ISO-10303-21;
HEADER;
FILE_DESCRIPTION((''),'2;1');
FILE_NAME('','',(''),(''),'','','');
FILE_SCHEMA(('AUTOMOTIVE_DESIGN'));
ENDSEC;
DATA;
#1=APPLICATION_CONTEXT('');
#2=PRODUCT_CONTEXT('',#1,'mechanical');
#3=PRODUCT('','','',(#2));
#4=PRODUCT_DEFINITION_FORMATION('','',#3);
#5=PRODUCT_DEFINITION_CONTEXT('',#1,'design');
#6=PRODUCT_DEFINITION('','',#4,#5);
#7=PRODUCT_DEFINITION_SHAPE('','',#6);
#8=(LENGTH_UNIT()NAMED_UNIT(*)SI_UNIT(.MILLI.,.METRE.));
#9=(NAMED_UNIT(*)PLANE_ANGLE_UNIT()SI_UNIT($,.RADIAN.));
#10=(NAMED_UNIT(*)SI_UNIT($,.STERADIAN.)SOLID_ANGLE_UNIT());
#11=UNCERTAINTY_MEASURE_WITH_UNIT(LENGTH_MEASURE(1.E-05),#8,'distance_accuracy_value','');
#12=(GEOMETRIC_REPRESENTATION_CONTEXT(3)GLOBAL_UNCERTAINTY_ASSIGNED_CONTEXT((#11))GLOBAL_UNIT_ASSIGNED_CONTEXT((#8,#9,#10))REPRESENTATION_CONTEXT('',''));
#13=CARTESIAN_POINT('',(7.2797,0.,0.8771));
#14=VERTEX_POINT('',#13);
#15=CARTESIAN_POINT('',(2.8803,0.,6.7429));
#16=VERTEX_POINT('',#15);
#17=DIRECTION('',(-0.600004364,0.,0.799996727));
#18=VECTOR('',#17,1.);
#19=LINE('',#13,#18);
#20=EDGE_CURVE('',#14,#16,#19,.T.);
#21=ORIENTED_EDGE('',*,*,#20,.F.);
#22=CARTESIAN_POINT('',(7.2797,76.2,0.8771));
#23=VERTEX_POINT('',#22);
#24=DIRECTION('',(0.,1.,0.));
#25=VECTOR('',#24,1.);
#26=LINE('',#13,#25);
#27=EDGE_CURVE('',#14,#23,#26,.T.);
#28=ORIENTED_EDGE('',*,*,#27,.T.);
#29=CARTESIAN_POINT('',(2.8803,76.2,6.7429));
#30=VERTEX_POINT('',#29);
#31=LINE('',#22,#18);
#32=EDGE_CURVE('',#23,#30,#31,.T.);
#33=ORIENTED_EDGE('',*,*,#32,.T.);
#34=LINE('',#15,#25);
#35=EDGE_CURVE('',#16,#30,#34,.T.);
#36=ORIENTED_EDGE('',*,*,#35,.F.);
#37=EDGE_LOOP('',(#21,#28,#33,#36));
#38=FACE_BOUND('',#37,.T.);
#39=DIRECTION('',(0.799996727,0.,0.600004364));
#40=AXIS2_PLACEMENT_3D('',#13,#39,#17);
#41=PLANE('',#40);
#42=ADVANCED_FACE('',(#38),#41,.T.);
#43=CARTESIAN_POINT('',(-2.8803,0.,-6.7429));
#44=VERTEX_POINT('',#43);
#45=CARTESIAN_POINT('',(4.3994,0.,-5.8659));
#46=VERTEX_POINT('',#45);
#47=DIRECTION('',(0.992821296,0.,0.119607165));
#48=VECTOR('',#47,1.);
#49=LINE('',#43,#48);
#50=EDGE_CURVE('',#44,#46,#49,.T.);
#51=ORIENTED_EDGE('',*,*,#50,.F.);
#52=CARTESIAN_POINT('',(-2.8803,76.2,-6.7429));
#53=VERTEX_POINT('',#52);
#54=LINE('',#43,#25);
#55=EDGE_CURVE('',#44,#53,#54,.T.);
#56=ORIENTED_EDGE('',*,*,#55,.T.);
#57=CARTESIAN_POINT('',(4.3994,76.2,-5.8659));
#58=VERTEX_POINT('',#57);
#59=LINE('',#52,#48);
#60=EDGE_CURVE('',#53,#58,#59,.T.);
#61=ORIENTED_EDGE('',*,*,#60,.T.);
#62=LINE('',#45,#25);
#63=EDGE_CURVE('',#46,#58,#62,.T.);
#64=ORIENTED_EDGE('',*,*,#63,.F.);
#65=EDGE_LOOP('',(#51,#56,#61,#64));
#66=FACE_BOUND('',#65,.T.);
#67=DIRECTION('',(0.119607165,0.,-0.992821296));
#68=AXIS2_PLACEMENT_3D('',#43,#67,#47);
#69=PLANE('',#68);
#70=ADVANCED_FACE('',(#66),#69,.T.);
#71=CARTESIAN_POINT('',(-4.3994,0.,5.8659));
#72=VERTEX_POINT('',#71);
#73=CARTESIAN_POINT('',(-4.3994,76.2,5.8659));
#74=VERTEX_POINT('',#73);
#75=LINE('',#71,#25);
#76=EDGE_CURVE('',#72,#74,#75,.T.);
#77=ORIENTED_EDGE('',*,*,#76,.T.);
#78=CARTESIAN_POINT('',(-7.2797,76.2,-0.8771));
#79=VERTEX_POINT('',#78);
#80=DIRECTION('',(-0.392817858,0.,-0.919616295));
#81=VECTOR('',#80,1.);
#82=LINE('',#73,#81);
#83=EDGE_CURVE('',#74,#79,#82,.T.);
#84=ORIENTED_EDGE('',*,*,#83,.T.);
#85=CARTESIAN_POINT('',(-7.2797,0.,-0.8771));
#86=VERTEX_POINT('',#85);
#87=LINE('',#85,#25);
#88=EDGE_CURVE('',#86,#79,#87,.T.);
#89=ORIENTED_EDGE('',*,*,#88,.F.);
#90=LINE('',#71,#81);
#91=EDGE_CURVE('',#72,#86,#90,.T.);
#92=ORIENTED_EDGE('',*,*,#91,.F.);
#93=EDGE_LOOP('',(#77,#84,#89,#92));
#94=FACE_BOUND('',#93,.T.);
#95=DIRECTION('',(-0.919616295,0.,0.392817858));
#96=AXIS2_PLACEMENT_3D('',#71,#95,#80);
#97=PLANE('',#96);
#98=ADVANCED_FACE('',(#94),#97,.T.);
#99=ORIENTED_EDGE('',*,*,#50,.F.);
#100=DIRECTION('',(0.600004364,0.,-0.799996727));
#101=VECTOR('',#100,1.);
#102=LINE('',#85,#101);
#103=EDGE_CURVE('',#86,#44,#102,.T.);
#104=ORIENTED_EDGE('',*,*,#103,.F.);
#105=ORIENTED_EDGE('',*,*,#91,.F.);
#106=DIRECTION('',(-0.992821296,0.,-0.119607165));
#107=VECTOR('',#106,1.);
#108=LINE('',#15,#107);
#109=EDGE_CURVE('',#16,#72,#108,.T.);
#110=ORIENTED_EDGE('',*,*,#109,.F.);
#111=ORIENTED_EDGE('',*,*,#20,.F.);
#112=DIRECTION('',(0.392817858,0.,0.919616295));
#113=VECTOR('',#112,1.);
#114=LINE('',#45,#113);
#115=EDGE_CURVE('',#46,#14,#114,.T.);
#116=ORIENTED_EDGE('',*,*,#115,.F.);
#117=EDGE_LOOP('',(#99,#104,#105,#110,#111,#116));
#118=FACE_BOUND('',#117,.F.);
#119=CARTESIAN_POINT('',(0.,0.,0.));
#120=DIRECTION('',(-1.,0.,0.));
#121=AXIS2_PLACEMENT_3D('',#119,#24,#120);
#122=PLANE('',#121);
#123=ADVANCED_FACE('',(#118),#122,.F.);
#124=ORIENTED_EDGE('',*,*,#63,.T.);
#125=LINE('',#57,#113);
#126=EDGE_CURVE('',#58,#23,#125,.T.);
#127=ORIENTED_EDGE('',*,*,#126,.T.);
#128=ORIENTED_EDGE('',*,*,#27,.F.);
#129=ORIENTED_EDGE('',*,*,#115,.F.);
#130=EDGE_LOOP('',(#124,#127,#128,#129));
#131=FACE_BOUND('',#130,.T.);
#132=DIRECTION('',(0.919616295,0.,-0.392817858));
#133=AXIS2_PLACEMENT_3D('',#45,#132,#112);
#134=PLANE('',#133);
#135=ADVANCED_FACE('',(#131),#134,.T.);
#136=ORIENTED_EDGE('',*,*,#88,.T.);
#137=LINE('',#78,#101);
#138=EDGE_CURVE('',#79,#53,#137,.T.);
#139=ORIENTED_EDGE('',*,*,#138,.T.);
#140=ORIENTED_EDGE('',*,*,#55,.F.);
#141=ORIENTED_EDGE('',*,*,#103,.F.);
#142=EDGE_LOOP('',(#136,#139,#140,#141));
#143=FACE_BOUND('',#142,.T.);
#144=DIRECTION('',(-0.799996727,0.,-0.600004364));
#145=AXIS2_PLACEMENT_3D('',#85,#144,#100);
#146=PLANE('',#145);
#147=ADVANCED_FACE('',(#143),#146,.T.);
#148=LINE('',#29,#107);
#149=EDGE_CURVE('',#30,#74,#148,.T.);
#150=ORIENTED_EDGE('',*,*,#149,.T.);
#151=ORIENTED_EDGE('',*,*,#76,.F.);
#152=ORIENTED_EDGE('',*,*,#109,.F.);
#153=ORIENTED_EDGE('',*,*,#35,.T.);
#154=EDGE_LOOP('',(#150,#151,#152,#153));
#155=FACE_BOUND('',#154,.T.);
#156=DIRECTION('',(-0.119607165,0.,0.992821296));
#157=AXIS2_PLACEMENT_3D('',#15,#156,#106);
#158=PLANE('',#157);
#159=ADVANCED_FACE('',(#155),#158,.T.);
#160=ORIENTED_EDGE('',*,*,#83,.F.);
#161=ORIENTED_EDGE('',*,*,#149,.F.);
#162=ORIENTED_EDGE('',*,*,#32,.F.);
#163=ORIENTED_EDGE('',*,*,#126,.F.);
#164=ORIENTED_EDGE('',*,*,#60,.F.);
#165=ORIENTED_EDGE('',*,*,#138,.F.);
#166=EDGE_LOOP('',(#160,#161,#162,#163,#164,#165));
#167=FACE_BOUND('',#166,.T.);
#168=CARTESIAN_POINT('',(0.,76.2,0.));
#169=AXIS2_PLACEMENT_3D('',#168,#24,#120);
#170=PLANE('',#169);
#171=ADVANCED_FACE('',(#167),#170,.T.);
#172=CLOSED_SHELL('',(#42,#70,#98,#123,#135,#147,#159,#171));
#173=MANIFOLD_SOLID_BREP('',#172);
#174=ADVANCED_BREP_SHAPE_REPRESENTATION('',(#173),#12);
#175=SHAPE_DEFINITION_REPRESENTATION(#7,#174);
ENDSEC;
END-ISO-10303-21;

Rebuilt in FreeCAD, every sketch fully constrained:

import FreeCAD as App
import Part
import Sketcher
from FreeCAD import Vector
Q = App.Units.Quantity

doc = App.newDocument("Part")
body = doc.addObject("PartDesign::Body", "Body")

sketch1 = doc.addObject("Sketcher::SketchObject", "Sketch")
body.addObject(sketch1)
sketch1.AttachmentSupport = (doc.XZ_Plane, [""])
sketch1.MapMode = "FlatFace"
sketch1.addGeometry([
    Part.LineSegment(Vector(7.2797, 0.8771, 0), Vector(4.3994, -5.8659, 0)),
    Part.LineSegment(Vector(4.3994, -5.8659, 0), Vector(-2.8803, -6.7429, 0)),
    Part.LineSegment(Vector(-2.8803, -6.7429, 0), Vector(-7.2797, -0.8771, 0)),
    Part.LineSegment(Vector(-7.2797, -0.8771, 0), Vector(-4.3994, 5.8659, 0)),
    Part.LineSegment(Vector(-4.3994, 5.8659, 0), Vector(2.8803, 6.7429, 0)),
    Part.LineSegment(Vector(2.8803, 6.7429, 0), Vector(7.2797, 0.8771, 0)),
], False)
sketch1.addConstraint([
    Sketcher.Constraint("Coincident", 0, 2, 1, 1),
    Sketcher.Constraint("Coincident", 1, 2, 2, 1),
    Sketcher.Constraint("Coincident", 2, 2, 3, 1),
    Sketcher.Constraint("Coincident", 3, 2, 4, 1),
    Sketcher.Constraint("Coincident", 4, 2, 5, 1),
    Sketcher.Constraint("Coincident", 5, 2, 0, 1),
    Sketcher.Constraint("Symmetric", 0, 2, 3, 2, -1, 1),
    Sketcher.Constraint("Symmetric", 1, 2, 4, 2, -1, 1),
    Sketcher.Constraint("Symmetric", 2, 2, 5, 2, -1, 1),
    Sketcher.Constraint("Equal", 0, 1),
    Sketcher.Constraint("Equal", 1, 2),
    Sketcher.Constraint("DistanceX", 2, 2, 4, 2, Q("0.4 in")),
    Sketcher.Constraint("DistanceY", 2, 2, 4, 2, Q("0.3 in")),
    Sketcher.Constraint("Angle", 0, Q("-113.13 deg")),
    Sketcher.Constraint("Angle", 2, Q("126.8702 deg")),
])
pad1 = doc.addObject("PartDesign::Pad", "Pad")
body.addObject(pad1)
pad1.Profile = sketch1
pad1.Length = Q("3 in")
pad1.Reversed = True

doc.recompute()
